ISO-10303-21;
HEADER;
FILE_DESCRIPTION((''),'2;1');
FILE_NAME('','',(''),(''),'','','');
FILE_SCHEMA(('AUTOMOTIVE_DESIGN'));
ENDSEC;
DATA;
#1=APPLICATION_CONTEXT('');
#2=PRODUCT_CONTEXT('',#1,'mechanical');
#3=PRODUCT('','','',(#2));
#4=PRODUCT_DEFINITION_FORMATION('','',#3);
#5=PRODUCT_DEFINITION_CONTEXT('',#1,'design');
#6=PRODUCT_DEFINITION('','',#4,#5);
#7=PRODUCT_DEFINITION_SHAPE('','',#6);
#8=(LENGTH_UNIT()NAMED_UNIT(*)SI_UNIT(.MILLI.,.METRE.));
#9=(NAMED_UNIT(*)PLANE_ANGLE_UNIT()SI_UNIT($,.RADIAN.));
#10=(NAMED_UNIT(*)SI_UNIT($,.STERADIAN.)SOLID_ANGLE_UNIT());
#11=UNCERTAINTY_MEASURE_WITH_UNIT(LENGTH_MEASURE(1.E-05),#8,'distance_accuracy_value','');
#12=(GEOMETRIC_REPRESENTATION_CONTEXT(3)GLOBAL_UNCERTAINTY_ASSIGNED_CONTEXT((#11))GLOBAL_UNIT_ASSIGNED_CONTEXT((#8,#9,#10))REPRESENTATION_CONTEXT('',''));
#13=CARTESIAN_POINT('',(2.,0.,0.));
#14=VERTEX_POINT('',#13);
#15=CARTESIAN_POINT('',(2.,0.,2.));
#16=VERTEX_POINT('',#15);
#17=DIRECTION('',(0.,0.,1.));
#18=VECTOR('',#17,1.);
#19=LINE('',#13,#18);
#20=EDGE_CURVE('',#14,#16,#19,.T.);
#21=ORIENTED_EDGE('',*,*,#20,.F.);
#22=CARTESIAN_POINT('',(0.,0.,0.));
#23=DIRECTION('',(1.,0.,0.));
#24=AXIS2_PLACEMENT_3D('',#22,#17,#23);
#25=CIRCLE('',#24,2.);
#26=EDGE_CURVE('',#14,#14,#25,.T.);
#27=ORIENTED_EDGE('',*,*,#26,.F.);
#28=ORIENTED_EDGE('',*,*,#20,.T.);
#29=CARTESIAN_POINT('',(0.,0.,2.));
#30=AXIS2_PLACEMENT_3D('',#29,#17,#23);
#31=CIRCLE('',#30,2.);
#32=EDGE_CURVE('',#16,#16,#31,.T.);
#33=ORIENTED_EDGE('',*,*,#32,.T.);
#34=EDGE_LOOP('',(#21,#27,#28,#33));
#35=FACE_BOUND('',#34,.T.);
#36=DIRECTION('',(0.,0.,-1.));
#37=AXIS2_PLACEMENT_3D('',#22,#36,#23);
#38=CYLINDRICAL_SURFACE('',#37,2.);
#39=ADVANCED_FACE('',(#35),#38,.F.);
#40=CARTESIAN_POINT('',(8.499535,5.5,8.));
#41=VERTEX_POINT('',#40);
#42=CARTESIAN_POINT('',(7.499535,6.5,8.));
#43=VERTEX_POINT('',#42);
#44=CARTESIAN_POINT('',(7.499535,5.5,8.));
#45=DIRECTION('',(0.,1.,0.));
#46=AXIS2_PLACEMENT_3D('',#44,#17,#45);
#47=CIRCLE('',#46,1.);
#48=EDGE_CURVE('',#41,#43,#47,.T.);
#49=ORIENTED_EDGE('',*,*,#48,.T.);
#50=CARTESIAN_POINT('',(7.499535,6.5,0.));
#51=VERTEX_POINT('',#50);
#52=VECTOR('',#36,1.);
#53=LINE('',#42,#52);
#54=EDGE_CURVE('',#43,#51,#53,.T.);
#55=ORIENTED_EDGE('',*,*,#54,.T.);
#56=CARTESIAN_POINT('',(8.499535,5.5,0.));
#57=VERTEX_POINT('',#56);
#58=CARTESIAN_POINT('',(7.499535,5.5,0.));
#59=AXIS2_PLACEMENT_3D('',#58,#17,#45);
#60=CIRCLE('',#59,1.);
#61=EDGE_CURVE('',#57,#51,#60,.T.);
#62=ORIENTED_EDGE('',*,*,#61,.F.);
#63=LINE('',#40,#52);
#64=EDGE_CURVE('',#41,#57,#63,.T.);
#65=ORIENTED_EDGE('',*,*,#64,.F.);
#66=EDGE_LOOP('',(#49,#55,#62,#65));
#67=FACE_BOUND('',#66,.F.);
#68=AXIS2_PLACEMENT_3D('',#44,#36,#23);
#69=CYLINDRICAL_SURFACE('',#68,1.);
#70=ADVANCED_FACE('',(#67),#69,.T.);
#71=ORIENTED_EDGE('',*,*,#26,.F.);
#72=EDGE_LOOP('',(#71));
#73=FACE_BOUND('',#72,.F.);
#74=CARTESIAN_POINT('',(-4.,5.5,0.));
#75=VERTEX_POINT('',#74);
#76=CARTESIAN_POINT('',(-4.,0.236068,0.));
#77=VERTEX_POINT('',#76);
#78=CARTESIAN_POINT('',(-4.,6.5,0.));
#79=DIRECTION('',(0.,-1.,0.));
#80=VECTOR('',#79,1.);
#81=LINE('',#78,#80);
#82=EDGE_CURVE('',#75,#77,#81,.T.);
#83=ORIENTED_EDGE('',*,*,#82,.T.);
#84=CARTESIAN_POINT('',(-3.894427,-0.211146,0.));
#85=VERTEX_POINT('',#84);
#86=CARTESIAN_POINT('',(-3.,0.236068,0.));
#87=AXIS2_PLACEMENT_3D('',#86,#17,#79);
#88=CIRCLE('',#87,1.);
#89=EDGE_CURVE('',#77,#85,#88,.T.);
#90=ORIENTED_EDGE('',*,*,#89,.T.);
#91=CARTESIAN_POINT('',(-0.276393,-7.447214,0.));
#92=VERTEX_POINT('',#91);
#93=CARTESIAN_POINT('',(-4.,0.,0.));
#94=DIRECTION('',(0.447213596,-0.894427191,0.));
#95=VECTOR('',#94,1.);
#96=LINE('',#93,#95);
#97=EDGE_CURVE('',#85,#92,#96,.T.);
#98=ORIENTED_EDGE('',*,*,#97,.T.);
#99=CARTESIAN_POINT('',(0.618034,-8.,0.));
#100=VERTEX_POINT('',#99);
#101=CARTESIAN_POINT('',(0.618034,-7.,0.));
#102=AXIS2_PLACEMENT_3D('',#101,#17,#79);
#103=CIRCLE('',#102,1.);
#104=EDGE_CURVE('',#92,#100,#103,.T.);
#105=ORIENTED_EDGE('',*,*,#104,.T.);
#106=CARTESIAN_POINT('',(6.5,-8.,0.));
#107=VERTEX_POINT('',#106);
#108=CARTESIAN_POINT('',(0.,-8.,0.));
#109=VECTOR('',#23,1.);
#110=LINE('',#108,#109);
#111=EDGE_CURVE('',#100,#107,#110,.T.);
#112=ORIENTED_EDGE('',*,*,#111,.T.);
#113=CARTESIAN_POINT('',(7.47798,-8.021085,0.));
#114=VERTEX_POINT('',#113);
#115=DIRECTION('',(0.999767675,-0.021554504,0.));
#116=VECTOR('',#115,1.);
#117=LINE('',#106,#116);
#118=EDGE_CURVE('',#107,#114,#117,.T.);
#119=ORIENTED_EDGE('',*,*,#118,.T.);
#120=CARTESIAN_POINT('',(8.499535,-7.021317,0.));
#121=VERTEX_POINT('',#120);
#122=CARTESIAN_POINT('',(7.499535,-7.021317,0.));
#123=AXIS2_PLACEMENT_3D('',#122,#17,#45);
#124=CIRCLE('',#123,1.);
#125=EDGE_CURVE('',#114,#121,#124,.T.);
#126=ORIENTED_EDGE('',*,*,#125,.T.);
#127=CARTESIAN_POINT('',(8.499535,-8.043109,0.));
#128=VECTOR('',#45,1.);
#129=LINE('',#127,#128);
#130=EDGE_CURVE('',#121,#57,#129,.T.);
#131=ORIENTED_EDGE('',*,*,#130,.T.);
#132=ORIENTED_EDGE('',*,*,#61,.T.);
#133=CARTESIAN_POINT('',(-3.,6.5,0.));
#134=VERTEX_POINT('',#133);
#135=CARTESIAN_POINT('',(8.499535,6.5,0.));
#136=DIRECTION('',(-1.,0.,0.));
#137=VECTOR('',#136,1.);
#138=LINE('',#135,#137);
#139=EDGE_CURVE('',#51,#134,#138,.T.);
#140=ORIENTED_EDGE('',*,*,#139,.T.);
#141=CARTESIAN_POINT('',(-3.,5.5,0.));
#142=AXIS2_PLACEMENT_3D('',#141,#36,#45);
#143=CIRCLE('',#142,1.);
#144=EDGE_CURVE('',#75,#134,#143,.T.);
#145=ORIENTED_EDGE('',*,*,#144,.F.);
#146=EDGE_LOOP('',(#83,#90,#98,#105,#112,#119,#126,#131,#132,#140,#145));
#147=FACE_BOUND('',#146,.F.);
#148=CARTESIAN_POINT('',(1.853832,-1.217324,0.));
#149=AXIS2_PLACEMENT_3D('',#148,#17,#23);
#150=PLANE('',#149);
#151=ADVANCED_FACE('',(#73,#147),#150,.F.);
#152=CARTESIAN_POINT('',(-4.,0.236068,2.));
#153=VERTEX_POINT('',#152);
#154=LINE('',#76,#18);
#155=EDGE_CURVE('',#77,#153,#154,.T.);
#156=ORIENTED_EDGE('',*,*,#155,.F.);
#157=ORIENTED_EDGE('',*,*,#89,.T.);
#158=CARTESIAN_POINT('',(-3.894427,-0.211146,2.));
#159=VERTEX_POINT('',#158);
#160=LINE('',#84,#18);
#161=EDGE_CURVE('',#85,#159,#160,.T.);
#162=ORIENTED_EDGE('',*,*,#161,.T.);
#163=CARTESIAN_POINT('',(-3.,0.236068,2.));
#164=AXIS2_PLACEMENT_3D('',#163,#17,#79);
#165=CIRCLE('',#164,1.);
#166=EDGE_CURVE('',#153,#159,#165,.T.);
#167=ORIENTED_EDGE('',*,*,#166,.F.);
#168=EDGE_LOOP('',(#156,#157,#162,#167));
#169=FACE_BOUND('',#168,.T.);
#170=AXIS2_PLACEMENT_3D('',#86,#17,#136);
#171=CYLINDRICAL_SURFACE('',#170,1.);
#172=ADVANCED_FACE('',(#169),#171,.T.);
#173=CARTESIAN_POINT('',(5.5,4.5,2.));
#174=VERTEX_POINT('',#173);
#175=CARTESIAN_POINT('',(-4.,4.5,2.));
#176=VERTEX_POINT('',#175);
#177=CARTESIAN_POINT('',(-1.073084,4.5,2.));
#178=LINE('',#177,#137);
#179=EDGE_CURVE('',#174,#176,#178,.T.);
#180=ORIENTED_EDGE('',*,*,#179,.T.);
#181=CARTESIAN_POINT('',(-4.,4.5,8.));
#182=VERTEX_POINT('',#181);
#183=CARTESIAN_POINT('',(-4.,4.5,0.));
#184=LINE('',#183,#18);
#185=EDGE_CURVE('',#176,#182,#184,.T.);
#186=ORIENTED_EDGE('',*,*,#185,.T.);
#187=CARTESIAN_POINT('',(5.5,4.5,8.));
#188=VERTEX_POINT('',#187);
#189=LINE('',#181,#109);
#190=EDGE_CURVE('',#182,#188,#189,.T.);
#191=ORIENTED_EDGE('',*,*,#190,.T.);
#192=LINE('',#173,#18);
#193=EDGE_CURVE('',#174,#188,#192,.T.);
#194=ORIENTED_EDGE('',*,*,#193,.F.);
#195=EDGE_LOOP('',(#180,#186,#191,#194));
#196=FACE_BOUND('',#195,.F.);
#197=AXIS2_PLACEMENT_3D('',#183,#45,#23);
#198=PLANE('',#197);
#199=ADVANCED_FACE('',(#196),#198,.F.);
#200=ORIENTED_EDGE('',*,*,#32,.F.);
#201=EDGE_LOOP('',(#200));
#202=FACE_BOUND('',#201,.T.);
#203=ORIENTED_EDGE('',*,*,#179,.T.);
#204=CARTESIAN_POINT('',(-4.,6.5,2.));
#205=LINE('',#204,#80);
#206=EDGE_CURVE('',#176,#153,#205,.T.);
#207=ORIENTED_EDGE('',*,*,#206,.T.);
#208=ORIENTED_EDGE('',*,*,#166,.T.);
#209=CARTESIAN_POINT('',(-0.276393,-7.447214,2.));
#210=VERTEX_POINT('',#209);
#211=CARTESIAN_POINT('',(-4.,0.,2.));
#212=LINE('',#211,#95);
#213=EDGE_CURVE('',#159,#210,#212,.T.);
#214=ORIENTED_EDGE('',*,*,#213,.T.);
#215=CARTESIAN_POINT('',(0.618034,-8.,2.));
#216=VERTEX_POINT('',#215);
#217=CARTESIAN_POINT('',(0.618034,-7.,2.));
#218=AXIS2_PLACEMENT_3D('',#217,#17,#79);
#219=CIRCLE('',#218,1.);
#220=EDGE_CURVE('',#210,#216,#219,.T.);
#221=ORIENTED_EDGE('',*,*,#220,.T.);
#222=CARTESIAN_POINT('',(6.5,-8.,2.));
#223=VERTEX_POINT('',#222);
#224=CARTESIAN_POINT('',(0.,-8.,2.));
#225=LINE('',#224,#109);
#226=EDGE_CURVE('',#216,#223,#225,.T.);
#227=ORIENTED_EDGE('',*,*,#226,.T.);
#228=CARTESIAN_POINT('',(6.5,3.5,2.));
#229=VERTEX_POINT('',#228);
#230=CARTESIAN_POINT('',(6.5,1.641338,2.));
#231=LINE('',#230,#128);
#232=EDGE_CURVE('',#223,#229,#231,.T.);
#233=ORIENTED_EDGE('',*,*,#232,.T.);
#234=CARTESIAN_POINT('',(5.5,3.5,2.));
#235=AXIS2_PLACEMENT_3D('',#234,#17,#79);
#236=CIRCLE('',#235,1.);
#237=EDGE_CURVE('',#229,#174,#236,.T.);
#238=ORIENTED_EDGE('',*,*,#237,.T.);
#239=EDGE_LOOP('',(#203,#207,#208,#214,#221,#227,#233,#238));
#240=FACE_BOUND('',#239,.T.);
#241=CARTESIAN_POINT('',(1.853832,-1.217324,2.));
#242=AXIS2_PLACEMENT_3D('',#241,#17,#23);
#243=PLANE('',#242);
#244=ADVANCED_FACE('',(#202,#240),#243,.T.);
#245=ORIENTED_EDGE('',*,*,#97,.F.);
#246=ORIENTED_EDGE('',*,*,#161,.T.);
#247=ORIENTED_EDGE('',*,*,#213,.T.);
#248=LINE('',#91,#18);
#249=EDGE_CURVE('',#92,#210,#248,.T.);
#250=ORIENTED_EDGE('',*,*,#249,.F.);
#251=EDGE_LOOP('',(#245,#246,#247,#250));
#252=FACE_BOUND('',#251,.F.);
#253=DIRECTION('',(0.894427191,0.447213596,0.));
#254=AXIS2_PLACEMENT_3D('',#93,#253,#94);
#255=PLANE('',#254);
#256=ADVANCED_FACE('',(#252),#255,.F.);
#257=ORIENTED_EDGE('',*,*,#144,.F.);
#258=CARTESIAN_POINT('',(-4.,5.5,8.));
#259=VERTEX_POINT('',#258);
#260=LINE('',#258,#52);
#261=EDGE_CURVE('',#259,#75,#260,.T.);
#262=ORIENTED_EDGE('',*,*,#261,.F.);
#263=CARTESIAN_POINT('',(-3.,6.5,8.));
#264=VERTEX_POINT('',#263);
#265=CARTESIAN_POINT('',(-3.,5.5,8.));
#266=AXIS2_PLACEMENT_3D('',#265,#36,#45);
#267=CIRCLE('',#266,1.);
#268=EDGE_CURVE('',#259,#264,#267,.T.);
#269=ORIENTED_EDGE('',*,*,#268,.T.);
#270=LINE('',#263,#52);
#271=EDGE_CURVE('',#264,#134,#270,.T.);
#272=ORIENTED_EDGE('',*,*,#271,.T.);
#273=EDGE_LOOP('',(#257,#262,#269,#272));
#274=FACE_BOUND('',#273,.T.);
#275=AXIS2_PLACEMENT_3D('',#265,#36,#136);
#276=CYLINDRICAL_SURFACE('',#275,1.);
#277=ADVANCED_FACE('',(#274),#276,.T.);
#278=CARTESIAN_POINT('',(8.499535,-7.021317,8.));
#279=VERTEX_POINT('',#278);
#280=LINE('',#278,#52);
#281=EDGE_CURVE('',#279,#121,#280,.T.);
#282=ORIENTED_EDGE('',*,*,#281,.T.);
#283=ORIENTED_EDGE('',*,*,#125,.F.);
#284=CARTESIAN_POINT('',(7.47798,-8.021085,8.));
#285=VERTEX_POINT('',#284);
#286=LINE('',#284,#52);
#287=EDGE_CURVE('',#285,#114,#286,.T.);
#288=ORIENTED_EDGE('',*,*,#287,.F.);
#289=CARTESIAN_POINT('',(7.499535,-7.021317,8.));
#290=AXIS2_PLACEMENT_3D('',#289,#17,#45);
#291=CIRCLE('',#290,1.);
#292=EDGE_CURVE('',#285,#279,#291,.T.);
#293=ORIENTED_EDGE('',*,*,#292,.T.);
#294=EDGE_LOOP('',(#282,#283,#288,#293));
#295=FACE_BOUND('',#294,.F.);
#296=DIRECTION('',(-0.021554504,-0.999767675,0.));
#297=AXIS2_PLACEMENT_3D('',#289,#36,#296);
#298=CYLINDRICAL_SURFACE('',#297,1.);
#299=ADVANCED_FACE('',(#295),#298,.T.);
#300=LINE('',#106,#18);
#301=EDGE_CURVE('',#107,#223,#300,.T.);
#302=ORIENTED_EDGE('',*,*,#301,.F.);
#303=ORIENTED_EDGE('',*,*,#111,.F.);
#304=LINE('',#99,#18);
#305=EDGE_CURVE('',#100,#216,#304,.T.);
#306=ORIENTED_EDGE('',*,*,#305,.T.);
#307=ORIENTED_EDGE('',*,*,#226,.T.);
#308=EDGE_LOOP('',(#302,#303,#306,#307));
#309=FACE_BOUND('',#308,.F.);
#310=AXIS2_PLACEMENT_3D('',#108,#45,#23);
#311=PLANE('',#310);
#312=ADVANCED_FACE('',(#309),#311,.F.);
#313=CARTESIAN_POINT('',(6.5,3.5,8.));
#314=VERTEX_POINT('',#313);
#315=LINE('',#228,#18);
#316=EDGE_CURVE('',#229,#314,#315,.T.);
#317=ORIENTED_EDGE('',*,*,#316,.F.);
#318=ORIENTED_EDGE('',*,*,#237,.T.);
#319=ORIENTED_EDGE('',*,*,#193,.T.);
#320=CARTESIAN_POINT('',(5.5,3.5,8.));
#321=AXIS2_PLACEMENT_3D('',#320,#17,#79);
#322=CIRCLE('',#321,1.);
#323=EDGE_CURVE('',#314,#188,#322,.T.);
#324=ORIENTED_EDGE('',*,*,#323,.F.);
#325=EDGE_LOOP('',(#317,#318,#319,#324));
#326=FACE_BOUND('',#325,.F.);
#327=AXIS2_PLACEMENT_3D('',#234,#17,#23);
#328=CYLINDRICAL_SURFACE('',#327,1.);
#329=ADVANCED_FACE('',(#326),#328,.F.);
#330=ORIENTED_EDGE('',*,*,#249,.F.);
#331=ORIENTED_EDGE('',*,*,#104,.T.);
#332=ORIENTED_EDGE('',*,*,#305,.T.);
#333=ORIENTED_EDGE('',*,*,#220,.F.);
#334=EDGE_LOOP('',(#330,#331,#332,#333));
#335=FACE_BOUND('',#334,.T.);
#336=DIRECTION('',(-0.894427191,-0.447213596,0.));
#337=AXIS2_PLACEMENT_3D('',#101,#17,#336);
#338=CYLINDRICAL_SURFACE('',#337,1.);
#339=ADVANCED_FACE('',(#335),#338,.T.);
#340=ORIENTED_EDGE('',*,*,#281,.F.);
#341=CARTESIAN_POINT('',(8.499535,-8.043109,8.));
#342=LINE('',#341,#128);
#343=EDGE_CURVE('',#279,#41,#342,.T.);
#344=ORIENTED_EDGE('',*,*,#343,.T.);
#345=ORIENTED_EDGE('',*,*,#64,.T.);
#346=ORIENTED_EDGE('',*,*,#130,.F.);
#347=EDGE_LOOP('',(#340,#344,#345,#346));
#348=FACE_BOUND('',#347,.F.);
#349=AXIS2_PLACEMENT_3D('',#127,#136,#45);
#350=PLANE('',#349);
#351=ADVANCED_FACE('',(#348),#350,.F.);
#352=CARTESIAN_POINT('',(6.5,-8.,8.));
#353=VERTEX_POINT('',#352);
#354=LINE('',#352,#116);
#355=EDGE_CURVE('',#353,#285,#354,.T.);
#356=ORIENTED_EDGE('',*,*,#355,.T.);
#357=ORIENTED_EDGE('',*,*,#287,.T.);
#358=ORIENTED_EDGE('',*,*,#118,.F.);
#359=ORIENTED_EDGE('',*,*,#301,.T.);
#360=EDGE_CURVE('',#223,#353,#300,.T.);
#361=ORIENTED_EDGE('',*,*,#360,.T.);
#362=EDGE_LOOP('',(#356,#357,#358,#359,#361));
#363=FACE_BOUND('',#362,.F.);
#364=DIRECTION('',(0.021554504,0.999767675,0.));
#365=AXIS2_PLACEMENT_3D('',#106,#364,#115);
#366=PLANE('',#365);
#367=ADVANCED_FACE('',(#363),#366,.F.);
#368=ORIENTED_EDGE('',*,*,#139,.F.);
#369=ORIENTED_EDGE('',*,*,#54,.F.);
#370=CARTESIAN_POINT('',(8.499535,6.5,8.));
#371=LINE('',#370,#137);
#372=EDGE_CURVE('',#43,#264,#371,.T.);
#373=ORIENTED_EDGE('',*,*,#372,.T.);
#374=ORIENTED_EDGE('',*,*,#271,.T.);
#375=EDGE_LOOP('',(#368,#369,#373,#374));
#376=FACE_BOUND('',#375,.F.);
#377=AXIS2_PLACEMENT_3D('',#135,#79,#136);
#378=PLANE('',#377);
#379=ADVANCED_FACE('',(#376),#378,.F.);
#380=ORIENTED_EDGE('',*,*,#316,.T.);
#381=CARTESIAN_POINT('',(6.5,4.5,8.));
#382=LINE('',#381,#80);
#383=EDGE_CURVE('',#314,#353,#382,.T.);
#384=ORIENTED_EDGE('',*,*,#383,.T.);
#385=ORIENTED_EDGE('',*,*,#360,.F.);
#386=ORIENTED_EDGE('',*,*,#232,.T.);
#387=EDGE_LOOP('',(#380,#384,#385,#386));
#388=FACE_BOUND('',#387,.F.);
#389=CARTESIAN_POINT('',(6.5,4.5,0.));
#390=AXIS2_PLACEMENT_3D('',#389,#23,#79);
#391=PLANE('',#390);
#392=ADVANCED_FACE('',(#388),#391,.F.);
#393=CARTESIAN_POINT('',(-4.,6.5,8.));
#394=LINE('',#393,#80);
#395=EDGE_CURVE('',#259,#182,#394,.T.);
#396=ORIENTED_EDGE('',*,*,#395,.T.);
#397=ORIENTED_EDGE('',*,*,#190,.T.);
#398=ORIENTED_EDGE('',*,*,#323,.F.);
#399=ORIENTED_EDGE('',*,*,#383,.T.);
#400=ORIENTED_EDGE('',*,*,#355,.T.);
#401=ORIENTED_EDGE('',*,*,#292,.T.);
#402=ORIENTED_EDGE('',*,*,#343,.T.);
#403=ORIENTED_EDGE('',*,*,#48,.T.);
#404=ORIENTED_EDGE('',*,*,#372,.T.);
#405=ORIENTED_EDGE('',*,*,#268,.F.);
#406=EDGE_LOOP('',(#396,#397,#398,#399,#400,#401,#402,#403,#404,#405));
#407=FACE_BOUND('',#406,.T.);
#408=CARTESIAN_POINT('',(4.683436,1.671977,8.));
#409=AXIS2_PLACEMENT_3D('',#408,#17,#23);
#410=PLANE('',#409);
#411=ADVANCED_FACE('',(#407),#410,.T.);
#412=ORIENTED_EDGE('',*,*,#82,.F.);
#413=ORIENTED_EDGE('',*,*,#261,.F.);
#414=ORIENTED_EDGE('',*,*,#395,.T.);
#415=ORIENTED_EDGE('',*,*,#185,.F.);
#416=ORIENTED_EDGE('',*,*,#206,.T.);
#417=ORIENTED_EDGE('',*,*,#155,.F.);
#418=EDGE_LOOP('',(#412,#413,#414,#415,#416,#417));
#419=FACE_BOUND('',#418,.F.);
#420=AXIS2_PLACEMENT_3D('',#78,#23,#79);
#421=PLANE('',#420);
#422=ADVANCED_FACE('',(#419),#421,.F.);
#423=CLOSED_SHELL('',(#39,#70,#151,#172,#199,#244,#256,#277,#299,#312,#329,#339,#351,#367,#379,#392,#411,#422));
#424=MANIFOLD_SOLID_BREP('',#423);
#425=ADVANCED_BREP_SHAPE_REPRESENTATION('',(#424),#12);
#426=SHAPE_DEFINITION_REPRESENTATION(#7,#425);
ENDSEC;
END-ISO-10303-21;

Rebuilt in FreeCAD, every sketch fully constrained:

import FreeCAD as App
import Part
import Sketcher
from FreeCAD import Vector
Q = App.Units.Quantity


def edges_at(feature, points):
    """Names of the edges that pass closest to the given points."""
    edges = feature.Shape.Edges
    near = lambda p: min(range(len(edges)), key=lambda i: edges[i].distToShape(Part.Vertex(*p))[0])
    return sorted({f"Edge{near(p) + 1}" for p in points})


def add_polygon(sketch, points):
    """Adds a closed chain of lines whose ends are joined by coincident constraints."""
    first, n = sketch.GeometryCount, len(points)
    for a, b in zip(points, points[1:] + points[:1]):
        sketch.addGeometry(Part.LineSegment(App.Vector(*a, 0), App.Vector(*b, 0)), False)
    for i in range(n):
        sketch.addConstraint(Sketcher.Constraint("Coincident", first + i, 2, first + (i + 1) % n, 1))

doc = App.newDocument("Part")
body = doc.addObject("PartDesign::Body", "Body")

# Sketch on XY plane
sketch1 = doc.addObject("Sketcher::SketchObject", "Sketch")
body.addObject(sketch1)
sketch1.AttachmentSupport = (doc.XY_Plane, [""])
sketch1.MapMode = "FlatFace"
add_polygon(sketch1, [(-4, 0), (0, -8), (6.5, -8), (8.499535, -8.043109), (8.499535, 6.5), (-4, 6.5)])  # lines 0-5
sketch1.addGeometry(Part.Circle(Vector(0, 0, 0), Vector(0, 0, 1), 2), False)  # 6
sketch1.addConstraint([
    Sketcher.Constraint("Horizontal", 1),
    Sketcher.Constraint("Vertical", 3),
    Sketcher.Constraint("Horizontal", 4),
    Sketcher.Constraint("Vertical", 5),
    Sketcher.Constraint("Coincident", 6, 3, -1, 1),
    Sketcher.Constraint("PointOnObject", 0, 2, -2),
    Sketcher.Constraint("PointOnObject", 5, 2, -1),
    Sketcher.Constraint("Equal", 1, 5),
    Sketcher.Constraint("Diameter", 6, Q("4 mm")),
    Sketcher.Constraint("Distance", 2, Q("2 mm")),
    Sketcher.Constraint("DistanceX", 1, 1, 1, 2, Q("6.5 mm")),
    Sketcher.Constraint("DistanceY", 0, 2, -1, 1, Q("8 mm")),
    Sketcher.Constraint("DistanceX", 4, 2, -1, 1, Q("4 mm")),
    Sketcher.Constraint("DistanceY", 3, 1, 3, 2, Q("14.543109 mm")),
])
pad1 = doc.addObject("PartDesign::Pad", "Pad")
body.addObject(pad1)
pad1.Profile = sketch1
pad1.Length = 2

# Sketch on XY plane
sketch2 = doc.addObject("Sketcher::SketchObject", "Sketch001")
body.addObject(sketch2)
sketch2.AttachmentSupport = (doc.XY_Plane, [""])
sketch2.MapMode = "FlatFace"
add_polygon(sketch2, [(-4, 6.5), (-4, 4.5), (6.5, 4.5), (6.5, -8), (8.499535, -8.043109), (8.499535, 6.5)])  # lines 0-5
sketch2.addConstraint([
    Sketcher.Constraint("Vertical", 0),
    Sketcher.Constraint("Horizontal", 1),
    Sketcher.Constraint("Vertical", 2),
    Sketcher.Constraint("Vertical", 4),
    Sketcher.Constraint("Horizontal", 5),
    Sketcher.Constraint("DistanceY", 0, 2, 0, 1, Q("2 mm")),
    Sketcher.Constraint("Distance", 3, Q("2 mm")),
    Sketcher.Constraint("DistanceX", 1, 1, 1, 2, Q("10.5 mm")),
    Sketcher.Constraint("DistanceY", 2, 2, 2, 1, Q("12.5 mm")),
    Sketcher.Constraint("DistanceX", 0, 2, -1, 1, Q("4 mm")),
    Sketcher.Constraint("DistanceY", 2, 2, -1, 1, Q("8 mm")),
    Sketcher.Constraint("DistanceY", 4, 1, 4, 2, Q("14.543109 mm")),
])
pad2 = doc.addObject("PartDesign::Pad", "Pad001")
body.addObject(pad2)
pad2.Profile = sketch2
pad2.Length = 8
doc.recompute()

fillet = doc.addObject("PartDesign::Fillet", "Fillet")
body.addObject(fillet)
fillet.Base = (pad2, edges_at(pad2, [
    (6.5, 4.5, 5),
    (8.5, 6.5, 4),
    (-4, 6.5, 4),
    (-4, 0, 1),
    (0, -8, 1),
    (8.5, -8.043, 4),
]))
fillet.Radius = 1

doc.recompute()
